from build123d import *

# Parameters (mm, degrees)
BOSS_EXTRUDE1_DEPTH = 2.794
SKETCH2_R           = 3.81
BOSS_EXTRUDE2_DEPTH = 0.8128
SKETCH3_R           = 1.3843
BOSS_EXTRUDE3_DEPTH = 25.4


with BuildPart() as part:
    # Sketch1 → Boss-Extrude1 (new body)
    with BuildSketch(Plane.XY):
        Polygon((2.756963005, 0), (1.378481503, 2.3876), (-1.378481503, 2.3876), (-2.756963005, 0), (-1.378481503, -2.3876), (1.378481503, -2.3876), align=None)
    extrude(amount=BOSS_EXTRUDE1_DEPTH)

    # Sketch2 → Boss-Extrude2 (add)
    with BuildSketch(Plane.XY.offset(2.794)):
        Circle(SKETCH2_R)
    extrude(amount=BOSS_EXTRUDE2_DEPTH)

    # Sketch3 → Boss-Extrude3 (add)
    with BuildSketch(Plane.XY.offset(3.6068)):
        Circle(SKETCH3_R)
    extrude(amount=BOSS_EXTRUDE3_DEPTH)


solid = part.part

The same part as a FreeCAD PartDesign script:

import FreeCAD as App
import Part
import Sketcher

V = App.Vector
Q = App.Units.Quantity

doc = App.newDocument("Part")
body = doc.addObject("PartDesign::Body", "Body")

# Sketch on XY plane
sketch1 = body.newObject("Sketcher::SketchObject", "Sketch")
sketch1.AttachmentSupport = (doc.getObject("XY_Plane"), [""])
sketch1.MapMode = "FlatFace"
sketch1.addGeometry(Part.LineSegment(V(2.756963, 0, 0), V(1.378482, 2.3876, 0)), False)
sketch1.addGeometry(Part.LineSegment(V(1.378482, 2.3876, 0), V(-1.378482, 2.3876, 0)), False)
sketch1.addGeometry(Part.LineSegment(V(-1.378482, 2.3876, 0), V(-2.756963, 0, 0)), False)
sketch1.addGeometry(Part.LineSegment(V(-2.756963, 0, 0), V(-1.378482, -2.3876, 0)), False)
sketch1.addGeometry(Part.LineSegment(V(-1.378482, -2.3876, 0), V(1.378482, -2.3876, 0)), False)
sketch1.addGeometry(Part.LineSegment(V(1.378482, -2.3876, 0), V(2.756963, 0, 0)), False)
sketch1.addConstraint(Sketcher.Constraint("Coincident", 0, 2, 1, 1))
sketch1.addConstraint(Sketcher.Constraint("Coincident", 1, 2, 2, 1))
sketch1.addConstraint(Sketcher.Constraint("Coincident", 2, 2, 3, 1))
sketch1.addConstraint(Sketcher.Constraint("Coincident", 3, 2, 4, 1))
sketch1.addConstraint(Sketcher.Constraint("Coincident", 4, 2, 5, 1))
sketch1.addConstraint(Sketcher.Constraint("Coincident", 5, 2, 0, 1))
sketch1.addConstraint(Sketcher.Constraint("Horizontal", 1))
sketch1.addConstraint(Sketcher.Constraint("Horizontal", 4))
sketch1.addConstraint(Sketcher.Constraint("Symmetric", 0, 2, 3, 2, -1, 1))
sketch1.addConstraint(Sketcher.Constraint("Symmetric", 2, 2, 5, 2, -1, 1))
sketch1.addConstraint(Sketcher.Constraint("PointOnObject", 2, 2, -1))
sketch1.addConstraint(Sketcher.Constraint("Parallel", 2, 5))
sketch1.addConstraint(Sketcher.Constraint("Vertical", 1, 2, 3, 2))
sketch1.addConstraint(Sketcher.Constraint("Angle", 0, Q("120 deg")))
sketch1.addConstraint(Sketcher.Constraint("DistanceY", -1, 1, 0, 2, Q("0.094 in")))
sketch1.addConstraint(Sketcher.Constraint("DistanceX", 1, 2, 1, 1, 2.756963))
pad1 = body.newObject("PartDesign::Pad", "Pad")
pad1.Profile = sketch1
pad1.Length = Q("0.11 in")

# Sketch on XY plane
sketch2 = body.newObject("Sketcher::SketchObject", "Sketch001")
sketch2.AttachmentSupport = (doc.getObject("XY_Plane"), [""])
sketch2.MapMode = "FlatFace"
sketch2.AttachmentOffset = App.Placement(V(0, 0, 0.11 * 25.4), App.Rotation())
sketch2.addGeometry(Part.Circle(V(0, 0, 0), V(0, 0, 1), 3.81), False)
sketch2.addConstraint(Sketcher.Constraint("Coincident", 0, 3, -1, 1))
sketch2.addConstraint(Sketcher.Constraint("Diameter", 0, Q("0.3 in")))
pad2 = body.newObject("PartDesign::Pad", "Pad001")
pad2.Profile = sketch2
pad2.Length = Q("0.032 in")

# Sketch on XY plane
sketch3 = body.newObject("Sketcher::SketchObject", "Sketch002")
sketch3.AttachmentSupport = (doc.getObject("XY_Plane"), [""])
sketch3.MapMode = "FlatFace"
sketch3.AttachmentOffset = App.Placement(V(0, 0, 0.142 * 25.4), App.Rotation())
sketch3.addGeometry(Part.Circle(V(0, 0, 0), V(0, 0, 1), 1.3843), False)
sketch3.addConstraint(Sketcher.Constraint("Coincident", 0, 3, -1, 1))
sketch3.addConstraint(Sketcher.Constraint("Diameter", 0, Q("0.109 in")))
pad3 = body.newObject("PartDesign::Pad", "Pad002")
pad3.Profile = sketch3
pad3.Length = Q("1 in")

doc.recompute()
